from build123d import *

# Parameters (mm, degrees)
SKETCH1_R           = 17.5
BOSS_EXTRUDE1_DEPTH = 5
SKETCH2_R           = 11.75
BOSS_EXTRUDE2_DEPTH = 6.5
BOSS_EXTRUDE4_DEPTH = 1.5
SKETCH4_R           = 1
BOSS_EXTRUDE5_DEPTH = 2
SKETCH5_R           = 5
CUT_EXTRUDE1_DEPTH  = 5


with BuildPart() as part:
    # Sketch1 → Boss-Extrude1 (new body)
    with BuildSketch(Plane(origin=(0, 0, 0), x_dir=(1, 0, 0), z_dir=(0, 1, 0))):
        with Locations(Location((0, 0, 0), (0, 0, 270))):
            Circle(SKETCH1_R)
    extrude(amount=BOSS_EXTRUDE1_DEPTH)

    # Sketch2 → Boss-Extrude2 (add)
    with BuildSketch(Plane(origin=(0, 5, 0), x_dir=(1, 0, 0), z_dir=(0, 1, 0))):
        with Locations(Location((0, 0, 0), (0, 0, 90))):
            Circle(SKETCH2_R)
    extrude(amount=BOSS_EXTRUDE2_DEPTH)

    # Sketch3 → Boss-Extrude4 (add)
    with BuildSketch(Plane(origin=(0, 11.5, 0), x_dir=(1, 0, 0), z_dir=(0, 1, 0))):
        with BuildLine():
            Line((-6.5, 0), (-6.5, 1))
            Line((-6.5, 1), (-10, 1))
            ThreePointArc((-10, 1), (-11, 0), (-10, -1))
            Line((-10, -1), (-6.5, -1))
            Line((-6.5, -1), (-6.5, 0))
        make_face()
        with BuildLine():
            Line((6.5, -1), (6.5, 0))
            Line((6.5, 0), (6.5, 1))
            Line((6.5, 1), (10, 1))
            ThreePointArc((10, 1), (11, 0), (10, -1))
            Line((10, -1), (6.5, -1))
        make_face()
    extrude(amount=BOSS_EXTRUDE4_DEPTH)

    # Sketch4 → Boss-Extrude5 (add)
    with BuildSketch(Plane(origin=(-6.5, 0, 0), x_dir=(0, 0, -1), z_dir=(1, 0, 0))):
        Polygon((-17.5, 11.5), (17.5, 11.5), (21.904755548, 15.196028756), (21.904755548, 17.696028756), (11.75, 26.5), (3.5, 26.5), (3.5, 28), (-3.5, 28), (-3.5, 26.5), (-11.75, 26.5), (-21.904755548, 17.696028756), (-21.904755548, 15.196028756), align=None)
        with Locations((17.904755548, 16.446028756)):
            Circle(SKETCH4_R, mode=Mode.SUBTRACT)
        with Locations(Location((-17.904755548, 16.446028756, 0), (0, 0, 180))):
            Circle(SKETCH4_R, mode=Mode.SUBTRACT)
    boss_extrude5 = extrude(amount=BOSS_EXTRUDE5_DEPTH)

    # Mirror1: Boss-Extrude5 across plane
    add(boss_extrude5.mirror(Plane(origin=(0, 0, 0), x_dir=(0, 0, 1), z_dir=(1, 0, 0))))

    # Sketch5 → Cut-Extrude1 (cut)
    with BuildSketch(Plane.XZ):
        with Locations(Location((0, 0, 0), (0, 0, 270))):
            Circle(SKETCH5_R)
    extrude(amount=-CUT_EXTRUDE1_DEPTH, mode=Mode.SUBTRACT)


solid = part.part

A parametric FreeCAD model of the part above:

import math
import FreeCAD as App
import Part
import Sketcher

V = App.Vector
Q = App.Units.Quantity

doc = App.newDocument("Part")
body = doc.addObject("PartDesign::Body", "Body")

# Sketch on XZ plane
sketch1 = doc.addObject("Sketcher::SketchObject", "Sketch")
body.addObject(sketch1)
sketch1.AttachmentSupport = (doc.XZ_Plane, [""])
sketch1.MapMode = "FlatFace"
sketch1.addGeometry(Part.Circle(V(0, 0, 0), V(0, 0, 1), 18), False)
sketch1.addConstraint(Sketcher.Constraint("Coincident", 0, 3, -1, 1))
sketch1.addConstraint(Sketcher.Constraint("Diameter", 0, 35.0))
pad1 = doc.addObject("PartDesign::Pad", "Pad")
body.addObject(pad1)
pad1.Profile = sketch1
pad1.Length = 5
pad1.Reversed = True

# Sketch on XZ plane
sketch2 = doc.addObject("Sketcher::SketchObject", "Sketch001")
body.addObject(sketch2)
sketch2.AttachmentSupport = (doc.XZ_Plane, [""])
sketch2.MapMode = "FlatFace"
sketch2.AttachmentOffset = App.Placement(V(0, 0, -5), App.Rotation())
sketch2.addGeometry(Part.Circle(V(0, 0, 0), V(0, 0, 1), 12), False)
sketch2.addConstraint(Sketcher.Constraint("Coincident", 0, 3, -1, 1))
sketch2.addConstraint(Sketcher.Constraint("Diameter", 0, 23.5))
pad2 = doc.addObject("PartDesign::Pad", "Pad001")
body.addObject(pad2)
pad2.Profile = sketch2
pad2.Length = 6.5
pad2.Reversed = True

# Sketch on XZ plane
sketch3 = doc.addObject("Sketcher::SketchObject", "Sketch002")
body.addObject(sketch3)
sketch3.AttachmentSupport = (doc.XZ_Plane, [""])
sketch3.MapMode = "FlatFace"
sketch3.AttachmentOffset = App.Placement(V(0, 0, -11.5), App.Rotation())
sketch3.addGeometry(Part.LineSegment(V(-6.5, -1, 0), V(-10, -1, 0)), False)
sketch3.addGeometry(Part.ArcOfCircle(Part.Circle(V(-10, 0, 0), V(0, 0, 1), 1), math.radians(90), math.radians(270)), False)
sketch3.addGeometry(Part.LineSegment(V(-10, 1, 0), V(-6.5, 1, 0)), False)
sketch3.addGeometry(Part.LineSegment(V(-6.5, 1, 0), V(-6.5, -1, 0)), False)
sketch3.addGeometry(Part.LineSegment(V(6.5, -1, 0), V(6.5, 1, 0)), False)
sketch3.addGeometry(Part.LineSegment(V(6.5, 1, 0), V(10, 1, 0)), False)
sketch3.addGeometry(Part.ArcOfCircle(Part.Circle(V(10, 0, 0), V(0, 0, 1), 1), math.radians(-90), math.radians(90)), False)
sketch3.addGeometry(Part.LineSegment(V(10, -1, 0), V(6.5, -1, 0)), False)
sketch3.addConstraint(Sketcher.Constraint("Tangent", 0, 2, 1, 2))
sketch3.addConstraint(Sketcher.Constraint("Tangent", 1, 1, 2, 1))
sketch3.addConstraint(Sketcher.Constraint("Coincident", 2, 2, 3, 1))
sketch3.addConstraint(Sketcher.Constraint("Coincident", 3, 2, 0, 1))
sketch3.addConstraint(Sketcher.Constraint("Coincident", 4, 2, 5, 1))
sketch3.addConstraint(Sketcher.Constraint("Tangent", 5, 2, 6, 2))
sketch3.addConstraint(Sketcher.Constraint("Tangent", 6, 1, 7, 1))
sketch3.addConstraint(Sketcher.Constraint("Coincident", 7, 2, 4, 1))
sketch3.addConstraint(Sketcher.Constraint("Horizontal", 0))
sketch3.addConstraint(Sketcher.Constraint("Horizontal", 2))
sketch3.addConstraint(Sketcher.Constraint("Vertical", 3))
sketch3.addConstraint(Sketcher.Constraint("Vertical", 4))
sketch3.addConstraint(Sketcher.Constraint("Horizontal", 5))
sketch3.addConstraint(Sketcher.Constraint("Horizontal", 7))
sketch3.addConstraint(Sketcher.Constraint("Equal", 1, 6))
sketch3.addConstraint(Sketcher.Constraint("Symmetric", 1, 3, 6, 3, -1, 1))
sketch3.addConstraint(Sketcher.Constraint("Symmetric", 2, 2, 4, 2, -2))
sketch3.addConstraint(Sketcher.Constraint("Radius", 1, 1.0))
sketch3.addConstraint(Sketcher.Constraint("DistanceX", 0, 2, 0, 1, 3.5))
sketch3.addConstraint(Sketcher.Constraint("DistanceX", 1, 3, -1, 1, 10.0))
pad3 = doc.addObject("PartDesign::Pad", "Pad002")
body.addObject(pad3)
pad3.Profile = sketch3
pad3.Length = 1.5
pad3.Reversed = True

# Sketch on YZ plane
sketch4 = doc.addObject("Sketcher::SketchObject", "Sketch003")
body.addObject(sketch4)
sketch4.AttachmentSupport = (doc.YZ_Plane, [""])
sketch4.MapMode = "FlatFace"
sketch4.AttachmentOffset = App.Placement(V(0, 0, -6.5), App.Rotation())
sketch4.addGeometry(Part.LineSegment(V(11.5, 17.5, 0), V(11.5, -17.5, 0)), False)
sketch4.addGeometry(Part.LineSegment(V(11.5, -17.5, 0), V(15.2, -21.9, 0)), False)
sketch4.addGeometry(Part.LineSegment(V(15.2, -21.9, 0), V(17.7, -21.9, 0)), False)
sketch4.addGeometry(Part.LineSegment(V(17.7, -21.9, 0), V(26.5, -11.8, 0)), False)
sketch4.addGeometry(Part.LineSegment(V(26.5, -11.8, 0), V(26.5, -3.5, 0)), False)
sketch4.addGeometry(Part.LineSegment(V(26.5, -3.5, 0), V(28, -3.5, 0)), False)
sketch4.addGeometry(Part.LineSegment(V(28, -3.5, 0), V(28, 3.5, 0)), False)
sketch4.addGeometry(Part.LineSegment(V(28, 3.5, 0), V(26.5, 3.5, 0)), False)
sketch4.addGeometry(Part.LineSegment(V(26.5, 3.5, 0), V(26.5, 11.8, 0)), False)
sketch4.addGeometry(Part.LineSegment(V(26.5, 11.8, 0), V(17.7, 21.9, 0)), False)
sketch4.addGeometry(Part.LineSegment(V(17.7, 21.9, 0), V(15.2, 21.9, 0)), False)
sketch4.addGeometry(Part.LineSegment(V(15.2, 21.9, 0), V(11.5, 17.5, 0)), False)
sketch4.addGeometry(Part.Circle(V(16.4, 17.9, 0), V(0, 0, 1), 1), False)
sketch4.addGeometry(Part.Circle(V(16.4, -17.9, 0), V(0, 0, 1), 1), False)
sketch4.addConstraint(Sketcher.Constraint("Coincident", 0, 2, 1, 1))
sketch4.addConstraint(Sketcher.Constraint("Coincident", 1, 2, 2, 1))
sketch4.addConstraint(Sketcher.Constraint("Coincident", 2, 2, 3, 1))
sketch4.addConstraint(Sketcher.Constraint("Coincident", 3, 2, 4, 1))
sketch4.addConstraint(Sketcher.Constraint("Coincident", 4, 2, 5, 1))
sketch4.addConstraint(Sketcher.Constraint("Coincident", 5, 2, 6, 1))
sketch4.addConstraint(Sketcher.Constraint("Coincident", 6, 2, 7, 1))
sketch4.addConstraint(Sketcher.Constraint("Coincident", 7, 2, 8, 1))
sketch4.addConstraint(Sketcher.Constraint("Coincident", 8, 2, 9, 1))
sketch4.addConstraint(Sketcher.Constraint("Coincident", 9, 2, 10, 1))
sketch4.addConstraint(Sketcher.Constraint("Coincident", 10, 2, 11, 1))
sketch4.addConstraint(Sketcher.Constraint("Coincident", 11, 2, 0, 1))
sketch4.addConstraint(Sketcher.Constraint("Vertical", 0))
sketch4.addConstraint(Sketcher.Constraint("Horizontal", 2))
sketch4.addConstraint(Sketcher.Constraint("Vertical", 4))
sketch4.addConstraint(Sketcher.Constraint("Horizontal", 5))
sketch4.addConstraint(Sketcher.Constraint("Vertical", 6))
sketch4.addConstraint(Sketcher.Constraint("Horizontal", 7))
sketch4.addConstraint(Sketcher.Constraint("Vertical", 8))
sketch4.addConstraint(Sketcher.Constraint("Horizontal", 10))
sketch4.addConstraint(Sketcher.Constraint("Equal", 12, 13))
sketch4.addConstraint(Sketcher.Constraint("Symmetric", 12, 3, 13, 3, -1))
sketch4.addConstraint(Sketcher.Constraint("Symmetric", 4, 2, 7, 2, -1))
sketch4.addConstraint(Sketcher.Constraint("Symmetric", 2, 2, 9, 2, -1))
sketch4.addConstraint(Sketcher.Constraint("Vertical", 1, 2, 10, 2))
sketch4.addConstraint(Sketcher.Constraint("Equal", 4, 8))
sketch4.addConstraint(Sketcher.Constraint("Equal", 1, 11))
sketch4.addConstraint(Sketcher.Constraint("Diameter", 12, 2.0))
sketch4.addConstraint(Sketcher.Constraint("DistanceY", 0, 2, 0, 1, 35.0))
sketch4.addConstraint(Sketcher.Constraint("DistanceY", 6, 1, 6, 2, 7.0))
sketch4.addConstraint(Sketcher.Constraint("Angle", 1, Q("-50 deg")))
sketch4.addConstraint(Sketcher.Constraint("DistanceX", 2, 1, 2, 2, 2.5))
sketch4.addConstraint(Sketcher.Constraint("DistanceX", 5, 1, 5, 2, 1.5))
sketch4.addConstraint(Sketcher.Constraint("DistanceX", -1, 1, 5, 2, 28.0))
sketch4.addConstraint(Sketcher.Constraint("DistanceY", 1, 2, 13, 3, 4.0))
sketch4.addConstraint(Sketcher.Constraint("DistanceX", 0, 2, 3, 2, 15.0))
sketch4.addConstraint(Sketcher.Constraint("DistanceY", 4, 1, 4, 2, 8.25))
sketch4.addConstraint(Sketcher.Constraint("Distance", 1, 5.75))
sketch4.addConstraint(Sketcher.Constraint("DistanceX", 1, 2, 13, 3, 1.25))
pad4 = doc.addObject("PartDesign::Pad", "Pad003")
body.addObject(pad4)
pad4.Profile = sketch4
pad4.Length = 2
doc.recompute()

mirrored = doc.addObject("PartDesign::Mirrored", "Mirrored")
body.addObject(mirrored)
mirrored.Originals = [pad4]
mirrored.MirrorPlane = (doc.YZ_Plane, [""])
body.Tip = mirrored

# Sketch on XZ plane
sketch5 = doc.addObject("Sketcher::SketchObject", "Sketch004")
body.addObject(sketch5)
sketch5.AttachmentSupport = (doc.XZ_Plane, [""])
sketch5.MapMode = "FlatFace"
sketch5.addGeometry(Part.Circle(V(0, 0, 0), V(0, 0, 1), 5), False)
sketch5.addConstraint(Sketcher.Constraint("Coincident", 0, 3, -1, 1))
sketch5.addConstraint(Sketcher.Constraint("Diameter", 0, 10.0))
pocket1 = doc.addObject("PartDesign::Pocket", "Pocket")
body.addObject(pocket1)
pocket1.Profile = sketch5
pocket1.Length = 5

doc.recompute()
